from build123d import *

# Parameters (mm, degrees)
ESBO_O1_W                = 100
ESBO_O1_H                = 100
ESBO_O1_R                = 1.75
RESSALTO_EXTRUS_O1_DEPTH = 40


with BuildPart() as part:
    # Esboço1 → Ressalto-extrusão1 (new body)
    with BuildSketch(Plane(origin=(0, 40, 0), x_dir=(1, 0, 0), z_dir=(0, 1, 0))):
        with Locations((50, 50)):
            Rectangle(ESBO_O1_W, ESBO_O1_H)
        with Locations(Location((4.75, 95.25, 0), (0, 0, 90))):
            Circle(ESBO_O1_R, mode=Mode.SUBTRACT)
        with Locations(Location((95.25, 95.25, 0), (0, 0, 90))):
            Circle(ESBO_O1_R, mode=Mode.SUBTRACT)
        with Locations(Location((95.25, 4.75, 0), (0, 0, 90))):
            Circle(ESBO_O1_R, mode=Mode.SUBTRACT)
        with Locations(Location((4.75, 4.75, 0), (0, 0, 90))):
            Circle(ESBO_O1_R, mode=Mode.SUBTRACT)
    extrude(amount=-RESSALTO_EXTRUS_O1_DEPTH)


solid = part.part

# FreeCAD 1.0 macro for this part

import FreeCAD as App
import Part
import Sketcher

V = App.Vector


def add_polygon(sketch, points):
    """Adds a closed chain of lines whose ends are joined by coincident constraints."""
    first, n = sketch.GeometryCount, len(points)
    for a, b in zip(points, points[1:] + points[:1]):
        sketch.addGeometry(Part.LineSegment(App.Vector(*a, 0), App.Vector(*b, 0)), False)
    for i in range(n):
        sketch.addConstraint(Sketcher.Constraint("Coincident", first + i, 2, first + (i + 1) % n, 1))

doc = App.newDocument("Part")
params = doc.addObject("Spreadsheet::Sheet", "Params")
for row, (alias, value) in enumerate([
    ("sketch1_diameter", "3.5 mm"),
    ("sketch1_width", "100 mm"),
    ("pad1_length", "40 mm"),
], start=1):
    params.set(f"A{row}", alias)
    params.set(f"B{row}", "=" + value)
    params.setAlias(f"B{row}", alias)

body = doc.addObject("PartDesign::Body", "Body")

# Sketch on XZ plane
sketch1 = body.newObject("Sketcher::SketchObject", "Sketch")
sketch1.AttachmentSupport = (doc.getObject("XZ_Plane"), [""])
sketch1.MapMode = "FlatFace"
sketch1.AttachmentOffset = App.Placement(V(0, 0, -40), App.Rotation())
add_polygon(sketch1, [(0, -100), (0, 0), (100, 0), (100, -100)])  # lines 0-3
sketch1.addGeometry(Part.Circle(V(4.8, -4.8, 0), V(0, 0, 1), 1.8), False)  # 4
sketch1.addGeometry(Part.Circle(V(95.2, -4.8, 0), V(0, 0, 1), 1.8), False)  # 5
sketch1.addGeometry(Part.Circle(V(4.8, -95.2, 0), V(0, 0, 1), 1.8), False)  # 6
sketch1.addGeometry(Part.Circle(V(95.2, -95.2, 0), V(0, 0, 1), 1.8), False)  # 7
sketch1.addConstraint(Sketcher.Constraint("Vertical", 0))
sketch1.addConstraint(Sketcher.Constraint("Horizontal", 1))
sketch1.addConstraint(Sketcher.Constraint("Vertical", 2))
sketch1.addConstraint(Sketcher.Constraint("Horizontal", 3))
sketch1.addConstraint(Sketcher.Constraint("Coincident", 0, 2, -1, 1))
sketch1.addConstraint(Sketcher.Constraint("Equal", 4, 5))
sketch1.addConstraint(Sketcher.Constraint("Equal", 5, 6))
sketch1.addConstraint(Sketcher.Constraint("Equal", 6, 7))
sketch1.addConstraint(Sketcher.Constraint("Horizontal", 4, 3, 5, 3))
sketch1.addConstraint(Sketcher.Constraint("Horizontal", 6, 3, 7, 3))
sketch1.addConstraint(Sketcher.Constraint("Vertical", 4, 3, 6, 3))
sketch1.addConstraint(Sketcher.Constraint("Vertical", 5, 3, 7, 3))
sketch1.addConstraint(Sketcher.Constraint("Equal", 3, 0))
sketch1.addConstraint(Sketcher.Constraint("Diameter", 4, 3.5))
sketch1.addConstraint(Sketcher.Constraint("DistanceX", 1, 1, 1, 2, 100.0))
sketch1.addConstraint(Sketcher.Constraint("DistanceX", 4, 3, 5, 3, 90.5))
sketch1.addConstraint(Sketcher.Constraint("DistanceY", 6, 3, 4, 3, 90.5))
sketch1.addConstraint(Sketcher.Constraint("DistanceX", -1, 1, 4, 3, 4.75))
sketch1.addConstraint(Sketcher.Constraint("DistanceY", 4, 3, -1, 1, 4.75))
sketch1.setExpression("Constraints[17]", "Params.sketch1_diameter")
sketch1.setExpression("Constraints[18]", "Params.sketch1_width")
pad1 = body.newObject("PartDesign::Pad", "Pad")
pad1.Profile = sketch1
pad1.setExpression("Length", "Params.pad1_length")

doc.recompute()
